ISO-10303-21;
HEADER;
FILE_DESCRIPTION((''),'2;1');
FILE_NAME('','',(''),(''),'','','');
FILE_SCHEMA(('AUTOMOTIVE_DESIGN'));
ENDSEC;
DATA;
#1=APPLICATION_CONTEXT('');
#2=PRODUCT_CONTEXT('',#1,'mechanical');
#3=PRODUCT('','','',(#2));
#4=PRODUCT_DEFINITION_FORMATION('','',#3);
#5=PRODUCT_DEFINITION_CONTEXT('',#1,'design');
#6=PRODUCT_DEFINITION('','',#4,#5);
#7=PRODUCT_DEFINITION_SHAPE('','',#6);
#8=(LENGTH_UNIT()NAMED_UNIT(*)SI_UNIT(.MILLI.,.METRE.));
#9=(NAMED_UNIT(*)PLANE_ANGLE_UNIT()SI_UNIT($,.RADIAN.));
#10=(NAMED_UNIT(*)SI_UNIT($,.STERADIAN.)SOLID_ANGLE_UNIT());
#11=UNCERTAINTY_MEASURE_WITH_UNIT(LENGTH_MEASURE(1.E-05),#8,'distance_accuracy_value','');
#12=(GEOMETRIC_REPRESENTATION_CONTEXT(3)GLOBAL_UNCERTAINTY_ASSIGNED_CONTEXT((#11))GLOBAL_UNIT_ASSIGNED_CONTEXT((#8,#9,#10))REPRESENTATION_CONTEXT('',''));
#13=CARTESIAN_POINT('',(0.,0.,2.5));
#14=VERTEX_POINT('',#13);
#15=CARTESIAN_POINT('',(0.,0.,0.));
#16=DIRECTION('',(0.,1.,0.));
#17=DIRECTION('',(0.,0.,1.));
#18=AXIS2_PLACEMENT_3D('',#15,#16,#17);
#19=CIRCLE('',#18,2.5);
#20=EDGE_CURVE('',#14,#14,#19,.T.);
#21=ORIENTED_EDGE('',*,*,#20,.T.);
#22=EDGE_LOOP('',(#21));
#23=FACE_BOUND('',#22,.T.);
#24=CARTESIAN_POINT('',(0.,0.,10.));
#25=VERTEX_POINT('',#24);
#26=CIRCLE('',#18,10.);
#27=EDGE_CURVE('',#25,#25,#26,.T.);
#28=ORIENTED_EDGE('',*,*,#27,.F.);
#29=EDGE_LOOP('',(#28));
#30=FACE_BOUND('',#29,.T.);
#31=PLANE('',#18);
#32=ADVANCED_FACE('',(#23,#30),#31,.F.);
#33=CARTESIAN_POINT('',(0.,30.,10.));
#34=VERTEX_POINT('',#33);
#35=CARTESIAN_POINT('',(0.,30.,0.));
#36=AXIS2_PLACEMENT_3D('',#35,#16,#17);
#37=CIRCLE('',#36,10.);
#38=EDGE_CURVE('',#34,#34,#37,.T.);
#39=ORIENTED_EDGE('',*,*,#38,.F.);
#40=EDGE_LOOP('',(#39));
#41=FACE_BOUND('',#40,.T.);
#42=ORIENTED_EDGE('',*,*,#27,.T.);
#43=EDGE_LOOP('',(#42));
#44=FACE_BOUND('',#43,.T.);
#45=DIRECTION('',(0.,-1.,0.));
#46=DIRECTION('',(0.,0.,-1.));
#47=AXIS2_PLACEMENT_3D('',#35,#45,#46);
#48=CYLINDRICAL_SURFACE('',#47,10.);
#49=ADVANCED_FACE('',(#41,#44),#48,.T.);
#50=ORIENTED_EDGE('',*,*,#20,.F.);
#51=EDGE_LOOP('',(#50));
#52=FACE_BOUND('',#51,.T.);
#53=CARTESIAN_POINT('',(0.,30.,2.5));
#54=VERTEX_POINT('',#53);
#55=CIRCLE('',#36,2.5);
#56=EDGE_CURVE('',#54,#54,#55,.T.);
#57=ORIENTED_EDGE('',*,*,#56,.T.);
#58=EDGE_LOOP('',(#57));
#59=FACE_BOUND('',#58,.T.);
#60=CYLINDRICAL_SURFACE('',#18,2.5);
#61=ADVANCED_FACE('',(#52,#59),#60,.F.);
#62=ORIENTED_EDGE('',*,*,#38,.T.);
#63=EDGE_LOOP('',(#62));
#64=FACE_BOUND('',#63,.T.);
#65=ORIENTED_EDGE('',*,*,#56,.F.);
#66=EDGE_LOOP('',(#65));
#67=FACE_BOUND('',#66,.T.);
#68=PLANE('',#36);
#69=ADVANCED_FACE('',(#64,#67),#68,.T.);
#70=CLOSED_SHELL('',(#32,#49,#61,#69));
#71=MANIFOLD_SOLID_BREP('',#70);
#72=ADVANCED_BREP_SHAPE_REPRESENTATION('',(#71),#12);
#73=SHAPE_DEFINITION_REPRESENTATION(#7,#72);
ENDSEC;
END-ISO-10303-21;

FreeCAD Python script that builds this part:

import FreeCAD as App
import Part
import Sketcher

doc = App.newDocument("Part")
body = doc.addObject("PartDesign::Body", "Body")

# Sketch on XZ plane
sketch1 = doc.addObject("Sketcher::SketchObject", "Sketch")
body.addObject(sketch1)
sketch1.AttachmentSupport = (doc.XZ_Plane, [""])
sketch1.MapMode = "FlatFace"
sketch1.addGeometry(Part.Circle(App.Vector(0, 0, 0), App.Vector(0, 0, 1), 10), False)
sketch1.addConstraint([
    Sketcher.Constraint("Coincident", 0, 3, -1, 1),
    Sketcher.Constraint("Diameter", 0, 20.0),
])
pad1 = doc.addObject("PartDesign::Pad", "Pad")
body.addObject(pad1)
pad1.Profile = sketch1
pad1.Length = 30
pad1.Reversed = True

# Sketch on XZ plane
sketch2 = doc.addObject("Sketcher::SketchObject", "Sketch001")
body.addObject(sketch2)
sketch2.AttachmentSupport = (doc.XZ_Plane, [""])
sketch2.MapMode = "FlatFace"
sketch2.AttachmentOffset = App.Placement(App.Vector(0, 0, -30), App.Rotation())
sketch2.addGeometry(Part.Circle(App.Vector(0, 0, 0), App.Vector(0, 0, 1), 2.5), False)
sketch2.addConstraint([
    Sketcher.Constraint("Coincident", 0, 3, -1, 1),
    Sketcher.Constraint("Diameter", 0, 5.0),
])
pocket1 = doc.addObject("PartDesign::Pocket", "Pocket")
body.addObject(pocket1)
pocket1.Profile = sketch2
pocket1.Length = 30
pocket1.Reversed = True

doc.recompute()
